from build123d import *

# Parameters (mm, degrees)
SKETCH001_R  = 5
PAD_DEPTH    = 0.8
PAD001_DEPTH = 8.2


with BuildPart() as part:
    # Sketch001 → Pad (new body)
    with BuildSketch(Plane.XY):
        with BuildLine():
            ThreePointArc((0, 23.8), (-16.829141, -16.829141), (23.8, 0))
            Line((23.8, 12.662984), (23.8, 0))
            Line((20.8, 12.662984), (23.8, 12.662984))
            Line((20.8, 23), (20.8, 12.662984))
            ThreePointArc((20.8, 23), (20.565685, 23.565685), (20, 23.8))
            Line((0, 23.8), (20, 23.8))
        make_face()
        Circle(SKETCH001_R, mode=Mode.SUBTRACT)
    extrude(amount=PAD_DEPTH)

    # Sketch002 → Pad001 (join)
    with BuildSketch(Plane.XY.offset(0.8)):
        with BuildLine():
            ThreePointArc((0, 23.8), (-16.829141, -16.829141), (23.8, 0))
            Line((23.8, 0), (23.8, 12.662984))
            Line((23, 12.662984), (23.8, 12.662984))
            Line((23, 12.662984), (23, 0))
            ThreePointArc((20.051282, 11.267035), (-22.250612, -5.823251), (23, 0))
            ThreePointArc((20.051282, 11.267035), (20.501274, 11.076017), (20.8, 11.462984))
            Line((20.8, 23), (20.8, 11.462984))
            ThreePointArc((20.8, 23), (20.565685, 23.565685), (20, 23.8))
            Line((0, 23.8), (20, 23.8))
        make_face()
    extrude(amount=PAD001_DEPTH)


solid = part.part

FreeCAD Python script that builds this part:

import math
import FreeCAD as App
import Part
import Sketcher
from FreeCAD import Vector
Q = App.Units.Quantity

doc = App.newDocument("Part")
body = doc.addObject("PartDesign::Body", "Body")

sketch1 = doc.addObject("Sketcher::SketchObject", "Sketch")
body.addObject(sketch1)
sketch1.AttachmentSupport = (doc.XY_Plane, [""])
sketch1.MapMode = "FlatFace"
sketch1.addGeometry([
    Part.ArcOfCircle(Part.Circle(Vector(0, 0, 0), Vector(0, 0, 1), 23.8), math.radians(90), math.radians(360)),
    Part.LineSegment(Vector(23.8, 0, 0), Vector(23.8, 12.7, 0)),
    Part.LineSegment(Vector(23.8, 12.7, 0), Vector(20.8, 12.7, 0)),
    Part.LineSegment(Vector(20.8, 12.7, 0), Vector(20.8, 23, 0)),
    Part.ArcOfCircle(Part.Circle(Vector(20, 23, 0), Vector(0, 0, 1), 0.8), math.radians(0), math.radians(90)),
    Part.LineSegment(Vector(20, 23.8, 0), Vector(0, 23.8, 0)),
    Part.Circle(Vector(0, 0, 0), Vector(0, 0, 1), 5),
], False)
sketch1.addConstraint([
    Sketcher.Constraint("Tangent", 0, 2, 1, 1),
    Sketcher.Constraint("Coincident", 1, 2, 2, 1),
    Sketcher.Constraint("Coincident", 2, 2, 3, 1),
    Sketcher.Constraint("Tangent", 3, 2, 4, 1),
    Sketcher.Constraint("Tangent", 4, 2, 5, 1),
    Sketcher.Constraint("Tangent", 5, 2, 0, 1),
    Sketcher.Constraint("Vertical", 1),
    Sketcher.Constraint("Horizontal", 2),
    Sketcher.Constraint("Vertical", 3),
    Sketcher.Constraint("Horizontal", 5),
    Sketcher.Constraint("Coincident", 0, 3, -1, 1),
    Sketcher.Constraint("Coincident", 6, 3, -1, 1),
    Sketcher.Constraint("Diameter", 6, Q("10 mm")),
    Sketcher.Constraint("Radius", 0, Q("23.8 mm")),
    Sketcher.Constraint("Radius", 4, Q("0.800001 mm")),
    Sketcher.Constraint("DistanceX", 2, 2, 2, 1, Q("3 mm")),
    Sketcher.Constraint("DistanceY", 1, 1, 1, 2, Q("12.662984 mm")),
])
pad1 = doc.addObject("PartDesign::Pad", "Pad")
body.addObject(pad1)
pad1.Profile = sketch1
pad1.Length = 0.8

sketch2 = doc.addObject("Sketcher::SketchObject", "Sketch001")
body.addObject(sketch2)
sketch2.AttachmentSupport = (doc.XY_Plane, [""])
sketch2.MapMode = "FlatFace"
sketch2.AttachmentOffset = App.Placement(Vector(0, 0, 0.8), App.Rotation())
sketch2.addGeometry([
    Part.ArcOfCircle(Part.Circle(Vector(0, 0, 0), Vector(0, 0, 1), 23.8), math.radians(90), math.radians(360)),
    Part.LineSegment(Vector(23.8, 0, 0), Vector(23.8, 12.66, 0)),
    Part.LineSegment(Vector(23.8, 12.66, 0), Vector(23, 12.66, 0)),
    Part.LineSegment(Vector(23, 12.66, 0), Vector(23, 0, 0)),
    Part.ArcOfCircle(Part.Circle(Vector(0, 0, 0), Vector(0, 0, 1), 23), math.radians(29), math.radians(360)),
    Part.ArcOfCircle(Part.Circle(Vector(20.4, 11.46, 0), Vector(0, 0, 1), 0.4), math.radians(-151), math.radians(0)),
    Part.LineSegment(Vector(20.8, 11.46, 0), Vector(20.8, 23, 0)),
    Part.ArcOfCircle(Part.Circle(Vector(20, 23, 0), Vector(0, 0, 1), 0.8), math.radians(0), math.radians(90)),
    Part.LineSegment(Vector(20, 23.8, 0), Vector(0, 23.8, 0)),
], False)
sketch2.addConstraint([
    Sketcher.Constraint("Tangent", 0, 2, 1, 1),
    Sketcher.Constraint("Coincident", 1, 2, 2, 1),
    Sketcher.Constraint("Coincident", 2, 2, 3, 1),
    Sketcher.Constraint("Tangent", 3, 2, 4, 2),
    Sketcher.Constraint("Coincident", 4, 1, 5, 1),
    Sketcher.Constraint("Tangent", 5, 2, 6, 1),
    Sketcher.Constraint("Tangent", 6, 2, 7, 1),
    Sketcher.Constraint("Tangent", 7, 2, 8, 1),
    Sketcher.Constraint("Tangent", 8, 2, 0, 1),
    Sketcher.Constraint("Vertical", 1),
    Sketcher.Constraint("Horizontal", 2),
    Sketcher.Constraint("Vertical", 3),
    Sketcher.Constraint("Vertical", 6),
    Sketcher.Constraint("Horizontal", 8),
    Sketcher.Constraint("Coincident", 0, 3, -1, 1),
    Sketcher.Constraint("Coincident", 4, 3, -1, 1),
    Sketcher.Constraint("Radius", 4, Q("23 mm")),
    Sketcher.Constraint("Radius", 0, Q("23.8 mm")),
    Sketcher.Constraint("Radius", 5, Q("0.4 mm")),
    Sketcher.Constraint("Radius", 7, Q("0.800001 mm")),
    Sketcher.Constraint("DistanceX", 8, 2, 8, 1, Q("20 mm")),
    Sketcher.Constraint("DistanceY", 5, 3, 1, 2, Q("1.2 mm")),
    Sketcher.Constraint("DistanceX", -1, 1, 4, 1, Q("20.051282 mm")),
])
pad2 = doc.addObject("PartDesign::Pad", "Pad001")
body.addObject(pad2)
pad2.Profile = sketch2
pad2.Length = 8.2

doc.recompute()
